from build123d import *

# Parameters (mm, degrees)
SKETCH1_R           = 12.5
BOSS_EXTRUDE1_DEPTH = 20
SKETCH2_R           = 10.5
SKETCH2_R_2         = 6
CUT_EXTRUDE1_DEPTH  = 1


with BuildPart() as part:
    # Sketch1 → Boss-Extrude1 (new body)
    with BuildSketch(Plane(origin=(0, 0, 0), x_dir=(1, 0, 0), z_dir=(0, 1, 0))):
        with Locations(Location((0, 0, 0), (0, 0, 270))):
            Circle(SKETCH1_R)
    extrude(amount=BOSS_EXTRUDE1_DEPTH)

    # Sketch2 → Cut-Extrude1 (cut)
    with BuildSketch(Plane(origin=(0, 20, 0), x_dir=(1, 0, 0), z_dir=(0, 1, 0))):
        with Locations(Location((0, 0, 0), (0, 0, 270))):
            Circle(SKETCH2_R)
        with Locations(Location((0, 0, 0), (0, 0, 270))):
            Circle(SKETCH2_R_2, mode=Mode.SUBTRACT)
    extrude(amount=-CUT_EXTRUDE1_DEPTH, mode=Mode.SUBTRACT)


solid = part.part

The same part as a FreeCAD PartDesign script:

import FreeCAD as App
import Part
import Sketcher
from FreeCAD import Vector
Q = App.Units.Quantity

doc = App.newDocument("Part")
body = doc.addObject("PartDesign::Body", "Body")

# Sketch on XZ plane
sketch1 = body.newObject("Sketcher::SketchObject", "Sketch")
sketch1.AttachmentSupport = (doc.getObject("XZ_Plane"), [""])
sketch1.MapMode = "FlatFace"
sketch1.addGeometry(Part.Circle(Vector(0, 0, 0), Vector(0, 0, 1), 12), False)
sketch1.addConstraint([
    Sketcher.Constraint("Coincident", 0, 3, -1, 1),
    Sketcher.Constraint("Diameter", 0, Q("25 mm")),
])
pad1 = body.newObject("PartDesign::Pad", "Pad")
pad1.Profile = sketch1
pad1.Length = 20
pad1.Reversed = True

# Sketch on XZ plane
sketch2 = body.newObject("Sketcher::SketchObject", "Sketch001")
sketch2.AttachmentSupport = (doc.getObject("XZ_Plane"), [""])
sketch2.MapMode = "FlatFace"
sketch2.AttachmentOffset = App.Placement(Vector(0, 0, -20), App.Rotation())
sketch2.addGeometry([
    Part.Circle(Vector(0, 0, 0), Vector(0, 0, 1), 10),
    Part.Circle(Vector(0, 0, 0), Vector(0, 0, 1), 6),
], False)
sketch2.addConstraint([
    Sketcher.Constraint("Coincident", 0, 3, -1, 1),
    Sketcher.Constraint("Coincident", 1, 3, -1, 1),
    Sketcher.Constraint("Diameter", 0, Q("21 mm")),
    Sketcher.Constraint("Diameter", 1, Q("12 mm")),
])
pocket1 = body.newObject("PartDesign::Pocket", "Pocket")
pocket1.Profile = sketch2
pocket1.Length = 1
pocket1.Reversed = True

doc.recompute()
